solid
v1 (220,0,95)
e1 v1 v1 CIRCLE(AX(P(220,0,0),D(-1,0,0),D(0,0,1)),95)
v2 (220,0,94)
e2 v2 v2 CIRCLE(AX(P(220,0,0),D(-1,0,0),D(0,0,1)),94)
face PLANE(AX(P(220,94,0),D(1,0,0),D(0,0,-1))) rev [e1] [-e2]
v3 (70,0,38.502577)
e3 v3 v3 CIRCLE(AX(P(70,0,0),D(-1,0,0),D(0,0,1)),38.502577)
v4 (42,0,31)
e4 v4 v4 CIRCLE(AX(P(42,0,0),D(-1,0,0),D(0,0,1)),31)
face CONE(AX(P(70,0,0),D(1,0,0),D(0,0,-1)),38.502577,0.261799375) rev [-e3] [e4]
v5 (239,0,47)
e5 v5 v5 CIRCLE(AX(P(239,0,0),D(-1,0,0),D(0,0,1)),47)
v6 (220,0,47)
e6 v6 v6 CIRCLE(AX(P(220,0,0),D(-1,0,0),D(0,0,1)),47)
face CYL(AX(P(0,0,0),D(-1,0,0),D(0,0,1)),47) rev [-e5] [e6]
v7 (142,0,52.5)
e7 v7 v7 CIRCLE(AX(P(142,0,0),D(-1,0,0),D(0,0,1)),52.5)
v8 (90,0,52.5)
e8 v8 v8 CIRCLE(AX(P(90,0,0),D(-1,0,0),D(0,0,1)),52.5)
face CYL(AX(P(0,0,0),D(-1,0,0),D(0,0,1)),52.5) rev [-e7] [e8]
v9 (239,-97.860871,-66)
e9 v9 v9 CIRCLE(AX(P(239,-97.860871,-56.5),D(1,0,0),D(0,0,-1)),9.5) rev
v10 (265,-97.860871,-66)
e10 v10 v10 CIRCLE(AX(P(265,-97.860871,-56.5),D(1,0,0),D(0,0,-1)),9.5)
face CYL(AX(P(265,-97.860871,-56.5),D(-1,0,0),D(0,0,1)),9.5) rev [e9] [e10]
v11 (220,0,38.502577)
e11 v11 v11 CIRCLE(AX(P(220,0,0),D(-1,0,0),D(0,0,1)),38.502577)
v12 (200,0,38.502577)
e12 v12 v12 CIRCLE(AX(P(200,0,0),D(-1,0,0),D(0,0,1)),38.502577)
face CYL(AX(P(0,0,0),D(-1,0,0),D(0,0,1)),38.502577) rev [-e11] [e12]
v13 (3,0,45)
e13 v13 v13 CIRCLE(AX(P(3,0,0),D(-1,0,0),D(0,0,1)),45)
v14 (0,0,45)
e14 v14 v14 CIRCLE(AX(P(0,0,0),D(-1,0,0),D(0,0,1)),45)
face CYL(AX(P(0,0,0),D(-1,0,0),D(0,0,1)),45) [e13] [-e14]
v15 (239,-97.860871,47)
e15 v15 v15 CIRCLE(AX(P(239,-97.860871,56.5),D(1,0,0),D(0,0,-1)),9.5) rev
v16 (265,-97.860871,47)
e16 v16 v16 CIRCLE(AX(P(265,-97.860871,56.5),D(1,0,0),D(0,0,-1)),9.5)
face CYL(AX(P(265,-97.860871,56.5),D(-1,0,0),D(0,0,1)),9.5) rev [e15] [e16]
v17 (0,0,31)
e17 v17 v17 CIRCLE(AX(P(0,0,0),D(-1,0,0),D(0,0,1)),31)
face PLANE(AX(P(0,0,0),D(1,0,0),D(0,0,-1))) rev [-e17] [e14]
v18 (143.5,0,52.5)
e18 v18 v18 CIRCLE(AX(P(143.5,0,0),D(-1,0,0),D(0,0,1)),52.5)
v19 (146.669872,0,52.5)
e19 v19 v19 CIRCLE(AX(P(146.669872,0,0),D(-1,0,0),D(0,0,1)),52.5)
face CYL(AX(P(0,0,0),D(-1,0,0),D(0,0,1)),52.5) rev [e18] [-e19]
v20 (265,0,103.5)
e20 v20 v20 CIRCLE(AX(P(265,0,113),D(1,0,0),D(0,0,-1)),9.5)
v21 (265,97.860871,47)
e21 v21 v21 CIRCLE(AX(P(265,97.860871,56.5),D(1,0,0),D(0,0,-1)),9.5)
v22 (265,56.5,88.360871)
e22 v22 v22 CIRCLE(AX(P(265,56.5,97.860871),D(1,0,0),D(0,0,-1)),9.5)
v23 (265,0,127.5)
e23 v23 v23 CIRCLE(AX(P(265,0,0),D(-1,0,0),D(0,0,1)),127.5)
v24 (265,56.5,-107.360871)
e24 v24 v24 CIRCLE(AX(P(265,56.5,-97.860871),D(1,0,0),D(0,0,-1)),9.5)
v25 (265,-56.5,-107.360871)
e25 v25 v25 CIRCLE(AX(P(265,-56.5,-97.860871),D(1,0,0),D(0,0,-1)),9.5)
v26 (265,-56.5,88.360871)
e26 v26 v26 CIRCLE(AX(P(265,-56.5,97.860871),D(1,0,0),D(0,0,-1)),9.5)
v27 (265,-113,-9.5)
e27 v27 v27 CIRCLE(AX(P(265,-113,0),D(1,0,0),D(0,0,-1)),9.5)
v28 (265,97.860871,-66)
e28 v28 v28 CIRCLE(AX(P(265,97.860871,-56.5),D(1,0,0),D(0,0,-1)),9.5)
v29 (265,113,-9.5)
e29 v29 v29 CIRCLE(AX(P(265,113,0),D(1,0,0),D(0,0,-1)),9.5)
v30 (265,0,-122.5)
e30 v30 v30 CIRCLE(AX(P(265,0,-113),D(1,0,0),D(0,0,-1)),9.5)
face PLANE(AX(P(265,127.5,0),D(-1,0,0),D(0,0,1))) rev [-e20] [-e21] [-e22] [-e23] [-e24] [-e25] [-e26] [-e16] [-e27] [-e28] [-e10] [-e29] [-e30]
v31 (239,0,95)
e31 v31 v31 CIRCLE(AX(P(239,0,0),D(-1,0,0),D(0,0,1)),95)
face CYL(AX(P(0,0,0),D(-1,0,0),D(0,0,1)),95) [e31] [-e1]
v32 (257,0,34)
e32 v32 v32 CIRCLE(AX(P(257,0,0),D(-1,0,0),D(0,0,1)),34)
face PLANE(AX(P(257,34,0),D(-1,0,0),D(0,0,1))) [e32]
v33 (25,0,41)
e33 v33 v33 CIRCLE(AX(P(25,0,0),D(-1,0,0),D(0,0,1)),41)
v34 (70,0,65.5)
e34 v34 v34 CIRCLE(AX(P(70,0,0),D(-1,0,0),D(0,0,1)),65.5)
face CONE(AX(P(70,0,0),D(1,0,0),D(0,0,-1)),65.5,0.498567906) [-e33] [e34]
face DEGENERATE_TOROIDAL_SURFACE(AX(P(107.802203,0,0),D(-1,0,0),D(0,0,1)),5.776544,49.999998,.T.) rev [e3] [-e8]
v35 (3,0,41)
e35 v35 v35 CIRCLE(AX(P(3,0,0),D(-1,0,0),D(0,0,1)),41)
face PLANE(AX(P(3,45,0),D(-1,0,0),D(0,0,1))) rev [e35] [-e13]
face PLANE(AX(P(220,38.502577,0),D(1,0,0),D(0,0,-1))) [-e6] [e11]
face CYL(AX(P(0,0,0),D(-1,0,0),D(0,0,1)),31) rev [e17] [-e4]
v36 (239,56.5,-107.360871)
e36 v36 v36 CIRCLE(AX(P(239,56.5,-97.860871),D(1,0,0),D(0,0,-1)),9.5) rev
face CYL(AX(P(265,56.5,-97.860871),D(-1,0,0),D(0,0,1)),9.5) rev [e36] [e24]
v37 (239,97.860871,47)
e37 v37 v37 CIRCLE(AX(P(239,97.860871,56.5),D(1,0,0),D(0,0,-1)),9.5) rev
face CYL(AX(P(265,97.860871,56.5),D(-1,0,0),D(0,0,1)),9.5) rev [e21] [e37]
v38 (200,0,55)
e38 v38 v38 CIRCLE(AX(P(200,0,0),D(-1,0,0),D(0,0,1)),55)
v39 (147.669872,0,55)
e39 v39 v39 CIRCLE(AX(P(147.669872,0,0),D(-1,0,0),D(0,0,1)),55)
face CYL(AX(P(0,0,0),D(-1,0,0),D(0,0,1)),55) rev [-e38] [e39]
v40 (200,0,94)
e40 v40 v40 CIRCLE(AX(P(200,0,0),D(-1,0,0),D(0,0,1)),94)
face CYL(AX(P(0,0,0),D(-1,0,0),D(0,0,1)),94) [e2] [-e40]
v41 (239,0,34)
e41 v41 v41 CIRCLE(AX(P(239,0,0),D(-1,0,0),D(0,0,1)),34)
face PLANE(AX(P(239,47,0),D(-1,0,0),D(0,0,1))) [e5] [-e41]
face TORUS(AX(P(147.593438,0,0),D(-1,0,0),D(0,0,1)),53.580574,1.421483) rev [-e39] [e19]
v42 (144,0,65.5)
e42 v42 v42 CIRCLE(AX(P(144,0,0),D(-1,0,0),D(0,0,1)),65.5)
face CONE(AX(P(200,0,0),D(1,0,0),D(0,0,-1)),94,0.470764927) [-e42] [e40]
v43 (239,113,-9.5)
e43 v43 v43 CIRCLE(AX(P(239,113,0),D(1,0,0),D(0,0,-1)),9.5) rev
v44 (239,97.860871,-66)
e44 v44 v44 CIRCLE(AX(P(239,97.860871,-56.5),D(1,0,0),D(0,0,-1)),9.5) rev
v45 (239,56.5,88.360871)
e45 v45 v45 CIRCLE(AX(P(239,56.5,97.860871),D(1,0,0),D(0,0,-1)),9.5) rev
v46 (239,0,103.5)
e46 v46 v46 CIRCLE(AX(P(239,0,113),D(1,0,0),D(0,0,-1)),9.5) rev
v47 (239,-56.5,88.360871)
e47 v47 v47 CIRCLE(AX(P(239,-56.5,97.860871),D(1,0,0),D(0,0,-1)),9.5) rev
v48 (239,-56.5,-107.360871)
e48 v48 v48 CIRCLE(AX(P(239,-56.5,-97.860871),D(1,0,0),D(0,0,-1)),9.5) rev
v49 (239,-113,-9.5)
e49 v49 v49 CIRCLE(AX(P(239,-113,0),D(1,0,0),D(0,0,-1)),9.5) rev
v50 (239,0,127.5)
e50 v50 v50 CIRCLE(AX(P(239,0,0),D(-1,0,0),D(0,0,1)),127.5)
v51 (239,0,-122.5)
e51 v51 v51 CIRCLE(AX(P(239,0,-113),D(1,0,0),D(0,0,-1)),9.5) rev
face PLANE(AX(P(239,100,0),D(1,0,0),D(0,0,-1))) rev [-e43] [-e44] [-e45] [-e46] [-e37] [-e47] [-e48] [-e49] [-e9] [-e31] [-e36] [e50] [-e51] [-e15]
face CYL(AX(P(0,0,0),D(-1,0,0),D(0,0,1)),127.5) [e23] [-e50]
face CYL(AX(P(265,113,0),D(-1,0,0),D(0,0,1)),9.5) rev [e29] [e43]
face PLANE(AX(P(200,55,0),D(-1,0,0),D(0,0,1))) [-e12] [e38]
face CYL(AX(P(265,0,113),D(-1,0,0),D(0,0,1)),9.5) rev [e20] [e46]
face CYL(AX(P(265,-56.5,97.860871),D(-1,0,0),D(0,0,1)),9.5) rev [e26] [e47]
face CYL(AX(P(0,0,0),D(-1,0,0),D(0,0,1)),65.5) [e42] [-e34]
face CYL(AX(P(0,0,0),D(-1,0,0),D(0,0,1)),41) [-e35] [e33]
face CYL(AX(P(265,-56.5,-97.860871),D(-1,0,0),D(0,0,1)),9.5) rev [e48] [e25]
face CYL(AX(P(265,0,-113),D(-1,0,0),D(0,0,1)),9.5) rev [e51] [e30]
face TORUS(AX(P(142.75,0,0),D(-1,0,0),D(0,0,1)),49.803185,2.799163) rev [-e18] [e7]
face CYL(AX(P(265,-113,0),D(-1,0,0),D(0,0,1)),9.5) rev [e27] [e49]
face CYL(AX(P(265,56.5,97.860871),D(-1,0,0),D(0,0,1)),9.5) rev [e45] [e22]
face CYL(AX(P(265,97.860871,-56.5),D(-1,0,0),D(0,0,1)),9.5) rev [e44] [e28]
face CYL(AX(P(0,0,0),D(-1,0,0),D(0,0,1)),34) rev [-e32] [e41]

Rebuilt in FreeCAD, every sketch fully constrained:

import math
import FreeCAD as App
import Part
import Sketcher

V = App.Vector
Q = App.Units.Quantity

doc = App.newDocument("Part")
body = doc.addObject("PartDesign::Body", "Body")

sketch1 = doc.addObject("Sketcher::SketchObject", "Sketch")
body.addObject(sketch1)
sketch1.AttachmentSupport = (doc.XY_Plane, [""])
sketch1.MapMode = "FlatFace"
sketch1.addGeometry([
    Part.LineSegment(V(0, 0, 0), V(265, 0, 0)),
    Part.LineSegment(V(265, 0, 0), V(265, 127.5, 0)),
    Part.LineSegment(V(265, 127.5, 0), V(239, 127.5, 0)),
    Part.LineSegment(V(239, 127.5, 0), V(239, 95, 0)),
    Part.LineSegment(V(239, 95, 0), V(220, 95, 0)),
    Part.LineSegment(V(220, 95, 0), V(220, 94, 0)),
    Part.LineSegment(V(220, 94, 0), V(200, 94, 0)),
    Part.LineSegment(V(200, 94, 0), V(144, 65.5, 0)),
    Part.LineSegment(V(144, 65.5, 0), V(70, 65.5, 0)),
    Part.LineSegment(V(70, 65.5, 0), V(25, 41, 0)),
    Part.LineSegment(V(25, 41, 0), V(3, 41, 0)),
    Part.LineSegment(V(3, 41, 0), V(3, 45, 0)),
    Part.LineSegment(V(3, 45, 0), V(0, 45, 0)),
    Part.LineSegment(V(0, 45, 0), V(0, 0, 0)),
], False)
sketch1.addConstraint([
    Sketcher.Constraint("Coincident", 0, 2, 1, 1),
    Sketcher.Constraint("Coincident", 1, 2, 2, 1),
    Sketcher.Constraint("Coincident", 2, 2, 3, 1),
    Sketcher.Constraint("Coincident", 3, 2, 4, 1),
    Sketcher.Constraint("Coincident", 4, 2, 5, 1),
    Sketcher.Constraint("Coincident", 5, 2, 6, 1),
    Sketcher.Constraint("Coincident", 6, 2, 7, 1),
    Sketcher.Constraint("Coincident", 7, 2, 8, 1),
    Sketcher.Constraint("Coincident", 8, 2, 9, 1),
    Sketcher.Constraint("Coincident", 9, 2, 10, 1),
    Sketcher.Constraint("Coincident", 10, 2, 11, 1),
    Sketcher.Constraint("Coincident", 11, 2, 12, 1),
    Sketcher.Constraint("Coincident", 12, 2, 13, 1),
    Sketcher.Constraint("Coincident", 13, 2, 0, 1),
    Sketcher.Constraint("Horizontal", 0),
    Sketcher.Constraint("Vertical", 1),
    Sketcher.Constraint("Horizontal", 2),
    Sketcher.Constraint("Vertical", 3),
    Sketcher.Constraint("Horizontal", 4),
    Sketcher.Constraint("Vertical", 5),
    Sketcher.Constraint("Horizontal", 6),
    Sketcher.Constraint("Horizontal", 8),
    Sketcher.Constraint("Horizontal", 10),
    Sketcher.Constraint("Vertical", 11),
    Sketcher.Constraint("Horizontal", 12),
    Sketcher.Constraint("Vertical", 13),
    Sketcher.Constraint("Coincident", 13, 2, -1, 1),
    Sketcher.Constraint("DistanceX", 0, 1, 0, 2, Q("265 mm")),
    Sketcher.Constraint("DistanceX", 2, 2, 2, 1, Q("26 mm")),
    Sketcher.Constraint("DistanceX", 4, 2, 4, 1, Q("19 mm")),
    Sketcher.Constraint("DistanceX", 6, 2, 6, 1, Q("20 mm")),
    Sketcher.Constraint("DistanceX", 8, 2, 8, 1, Q("74 mm")),
    Sketcher.Constraint("DistanceX", 10, 2, 10, 1, Q("22 mm")),
    Sketcher.Constraint("DistanceX", 12, 2, 12, 1, Q("3 mm")),
    Sketcher.Constraint("DistanceY", 5, 2, 5, 1, Q("1 mm")),
    Sketcher.Constraint("DistanceY", 11, 1, 11, 2, Q("4 mm")),
    Sketcher.Constraint("DistanceY", 13, 2, 13, 1, Q("45 mm")),
    Sketcher.Constraint("DistanceY", 1, 1, 1, 2, Q("127.5 mm")),
    Sketcher.Constraint("DistanceY", 3, 2, 3, 1, Q("32.5 mm")),
    Sketcher.Constraint("DistanceX", -1, 1, 7, 2, Q("144 mm")),
    Sketcher.Constraint("DistanceY", 7, 2, 2, 2, Q("62 mm")),
])
revolution = doc.addObject("PartDesign::Revolution", "Revolution")
body.addObject(revolution)
revolution.Profile = sketch1
revolution.ReferenceAxis = (sketch1, ["H_Axis"])
revolution.Angle = 360

sketch2 = doc.addObject("Sketcher::SketchObject", "Sketch001")
body.addObject(sketch2)
sketch2.AttachmentSupport = (doc.XY_Plane, [""])
sketch2.MapMode = "FlatFace"
sketch2.addGeometry([
    Part.LineSegment(V(0, 0, 0), V(257, 0, 0)),
    Part.LineSegment(V(257, 0, 0), V(257, 34, 0)),
    Part.LineSegment(V(257, 34, 0), V(239, 34, 0)),
    Part.LineSegment(V(239, 34, 0), V(239, 47, 0)),
    Part.LineSegment(V(239, 47, 0), V(220, 47, 0)),
    Part.LineSegment(V(220, 47, 0), V(220, 38.5, 0)),
    Part.LineSegment(V(220, 38.5, 0), V(200, 38.5, 0)),
    Part.LineSegment(V(200, 38.5, 0), V(200, 55, 0)),
    Part.LineSegment(V(200, 55, 0), V(147.7, 55, 0)),
    Part.ArcOfCircle(Part.Circle(V(147.6, 53.6, 0), V(0, 0, 1), 1.4), math.radians(87), math.radians(229)),
    Part.LineSegment(V(146.7, 52.5, 0), V(143.5, 52.5, 0)),
    Part.ArcOfCircle(Part.Circle(V(142.8, 49.8, 0), V(0, 0, 1), 2.8), math.radians(74), math.radians(106)),
    Part.LineSegment(V(142, 52.5, 0), V(90, 52.5, 0)),
    Part.ArcOfCircle(Part.Circle(V(107.8, 5.8, 0), V(0, 0, 1), 50), math.radians(111), math.radians(139)),
    Part.LineSegment(V(70, 38.5, 0), V(42, 31, 0)),
    Part.LineSegment(V(42, 31, 0), V(0, 31, 0)),
    Part.LineSegment(V(0, 31, 0), V(0, 0, 0)),
], False)
sketch2.addConstraint([
    Sketcher.Constraint("Coincident", 0, 2, 1, 1),
    Sketcher.Constraint("Coincident", 1, 2, 2, 1),
    Sketcher.Constraint("Coincident", 2, 2, 3, 1),
    Sketcher.Constraint("Coincident", 3, 2, 4, 1),
    Sketcher.Constraint("Coincident", 4, 2, 5, 1),
    Sketcher.Constraint("Coincident", 5, 2, 6, 1),
    Sketcher.Constraint("Coincident", 6, 2, 7, 1),
    Sketcher.Constraint("Coincident", 7, 2, 8, 1),
    Sketcher.Constraint("Coincident", 8, 2, 9, 1),
    Sketcher.Constraint("Coincident", 9, 2, 10, 1),
    Sketcher.Constraint("Coincident", 10, 2, 11, 1),
    Sketcher.Constraint("Coincident", 11, 2, 12, 1),
    Sketcher.Constraint("Coincident", 12, 2, 13, 1),
    Sketcher.Constraint("Coincident", 13, 2, 14, 1),
    Sketcher.Constraint("Coincident", 14, 2, 15, 1),
    Sketcher.Constraint("Coincident", 15, 2, 16, 1),
    Sketcher.Constraint("Coincident", 16, 2, 0, 1),
    Sketcher.Constraint("Horizontal", 0),
    Sketcher.Constraint("Vertical", 1),
    Sketcher.Constraint("Horizontal", 2),
    Sketcher.Constraint("Vertical", 3),
    Sketcher.Constraint("Horizontal", 4),
    Sketcher.Constraint("Vertical", 5),
    Sketcher.Constraint("Horizontal", 6),
    Sketcher.Constraint("Vertical", 7),
    Sketcher.Constraint("Horizontal", 8),
    Sketcher.Constraint("Horizontal", 10),
    Sketcher.Constraint("Horizontal", 12),
    Sketcher.Constraint("Horizontal", 15),
    Sketcher.Constraint("Vertical", 16),
    Sketcher.Constraint("Coincident", 16, 2, -1, 1),
    Sketcher.Constraint("Horizontal", 10, 2, 11, 2),
    Sketcher.Constraint("Horizontal", 6, 2, 13, 2),
    Sketcher.Constraint("Radius", 13, Q("49.999998 mm")),
    Sketcher.Constraint("DistanceX", 0, 1, 0, 2, Q("257 mm")),
    Sketcher.Constraint("DistanceX", 2, 2, 2, 1, Q("18 mm")),
    Sketcher.Constraint("DistanceX", 4, 2, 4, 1, Q("19 mm")),
    Sketcher.Constraint("DistanceX", 6, 2, 6, 1, Q("20 mm")),
    Sketcher.Constraint("DistanceX", 12, 2, 12, 1, Q("52 mm")),
    Sketcher.Constraint("DistanceX", 15, 2, 15, 1, Q("42 mm")),
    Sketcher.Constraint("DistanceY", 1, 1, 1, 2, Q("34 mm")),
    Sketcher.Constraint("DistanceY", 3, 1, 3, 2, Q("13 mm")),
    Sketcher.Constraint("DistanceY", 16, 2, 16, 1, Q("31 mm")),
    Sketcher.Constraint("Angle", 14, Q("-165.000001 deg")),
    Sketcher.Constraint("DistanceY", -1, 1, 7, 2, Q("55 mm")),
    Sketcher.Constraint("DistanceX", -1, 1, 11, 2, Q("142 mm")),
    Sketcher.Constraint("DistanceX", -1, 1, 13, 2, Q("70 mm")),
    Sketcher.Constraint("DistanceX", 9, 2, 8, 2, Q("1 mm")),
    Sketcher.Constraint("DistanceY", -1, 1, 9, 2, Q("52.5 mm")),
    Sketcher.Constraint("DistanceX", -1, 1, 10, 2, Q("143.5 mm")),
    Sketcher.Constraint("Radius", 9, Q("1.421483 mm")),
    Sketcher.Constraint("Radius", 11, Q("2.799163 mm")),
    Sketcher.Constraint("DistanceX", 8, 2, 8, 1, Q("52.330128 mm")),
])
groove = doc.addObject("PartDesign::Groove", "Groove")
body.addObject(groove)
groove.Profile = sketch2
groove.ReferenceAxis = (sketch2, ["H_Axis"])
groove.Angle = 360

sketch3 = doc.addObject("Sketcher::SketchObject", "Sketch002")
body.addObject(sketch3)
sketch3.AttachmentSupport = (doc.YZ_Plane, [""])
sketch3.MapMode = "FlatFace"
sketch3.addGeometry(Part.Circle(V(113, 0, 0), V(0, 0, 1), 10), False)
sketch3.addConstraint([
    Sketcher.Constraint("PointOnObject", 0, 3, -1),
    Sketcher.Constraint("Diameter", 0, Q("19 mm")),
    Sketcher.Constraint("DistanceX", -1, 1, 0, 3, Q("113 mm")),
])
pocket1 = doc.addObject("PartDesign::Pocket", "Pocket")
body.addObject(pocket1)
pocket1.Profile = sketch3
pocket1.Type = "ThroughAll"
pocket1.Reversed = True

sketch4 = doc.addObject("Sketcher::SketchObject", "Sketch003")
body.addObject(sketch4)
sketch4.AttachmentSupport = (doc.YZ_Plane, [""])
sketch4.MapMode = "FlatFace"
sketch4.addGeometry(Part.Circle(V(98, 56, 0), V(0, 0, 1), 10), False)
sketch4.addConstraint([
    Sketcher.Constraint("Diameter", 0, Q("19 mm")),
    Sketcher.Constraint("DistanceY", -1, 1, 0, 3, Q("56.5 mm")),
    Sketcher.Constraint("DistanceX", -1, 1, 0, 3, Q("97.860871 mm")),
])
pocket2 = doc.addObject("PartDesign::Pocket", "Pocket001")
body.addObject(pocket2)
pocket2.Profile = sketch4
pocket2.Type = "ThroughAll"
pocket2.Reversed = True

sketch5 = doc.addObject("Sketcher::SketchObject", "Sketch004")
body.addObject(sketch5)
sketch5.AttachmentSupport = (doc.YZ_Plane, [""])
sketch5.MapMode = "FlatFace"
sketch5.addGeometry(Part.Circle(V(56, 98, 0), V(0, 0, 1), 10), False)
sketch5.addConstraint([
    Sketcher.Constraint("Diameter", 0, Q("19 mm")),
    Sketcher.Constraint("DistanceX", -1, 1, 0, 3, Q("56.5 mm")),
    Sketcher.Constraint("DistanceY", -1, 1, 0, 3, Q("97.860871 mm")),
])
pocket3 = doc.addObject("PartDesign::Pocket", "Pocket002")
body.addObject(pocket3)
pocket3.Profile = sketch5
pocket3.Type = "ThroughAll"
pocket3.Reversed = True

sketch6 = doc.addObject("Sketcher::SketchObject", "Sketch005")
body.addObject(sketch6)
sketch6.AttachmentSupport = (doc.YZ_Plane, [""])
sketch6.MapMode = "FlatFace"
sketch6.addGeometry(Part.Circle(V(0, 113, 0), V(0, 0, 1), 10), False)
sketch6.addConstraint([
    Sketcher.Constraint("PointOnObject", 0, 3, -2),
    Sketcher.Constraint("Diameter", 0, Q("19 mm")),
    Sketcher.Constraint("DistanceY", -1, 1, 0, 3, Q("113 mm")),
])
pocket4 = doc.addObject("PartDesign::Pocket", "Pocket003")
body.addObject(pocket4)
pocket4.Profile = sketch6
pocket4.Type = "ThroughAll"
pocket4.Reversed = True

sketch7 = doc.addObject("Sketcher::SketchObject", "Sketch006")
body.addObject(sketch7)
sketch7.AttachmentSupport = (doc.YZ_Plane, [""])
sketch7.MapMode = "FlatFace"
sketch7.addGeometry(Part.Circle(V(-56, 98, 0), V(0, 0, 1), 10), False)
sketch7.addConstraint([
    Sketcher.Constraint("Diameter", 0, Q("19 mm")),
    Sketcher.Constraint("DistanceX", 0, 3, -1, 1, Q("56.5 mm")),
    Sketcher.Constraint("DistanceY", -1, 1, 0, 3, Q("97.860871 mm")),
])
pocket5 = doc.addObject("PartDesign::Pocket", "Pocket004")
body.addObject(pocket5)
pocket5.Profile = sketch7
pocket5.Type = "ThroughAll"
pocket5.Reversed = True

sketch8 = doc.addObject("Sketcher::SketchObject", "Sketch007")
body.addObject(sketch8)
sketch8.AttachmentSupport = (doc.YZ_Plane, [""])
sketch8.MapMode = "FlatFace"
sketch8.addGeometry(Part.Circle(V(-98, 56, 0), V(0, 0, 1), 10), False)
sketch8.addConstraint([
    Sketcher.Constraint("Diameter", 0, Q("19 mm")),
    Sketcher.Constraint("DistanceY", -1, 1, 0, 3, Q("56.5 mm")),
    Sketcher.Constraint("DistanceX", 0, 3, -1, 1, Q("97.860871 mm")),
])
pocket6 = doc.addObject("PartDesign::Pocket", "Pocket005")
body.addObject(pocket6)
pocket6.Profile = sketch8
pocket6.Type = "ThroughAll"
pocket6.Reversed = True

sketch9 = doc.addObject("Sketcher::SketchObject", "Sketch008")
body.addObject(sketch9)
sketch9.AttachmentSupport = (doc.YZ_Plane, [""])
sketch9.MapMode = "FlatFace"
sketch9.addGeometry(Part.Circle(V(-113, 0, 0), V(0, 0, 1), 10), False)
sketch9.addConstraint([
    Sketcher.Constraint("PointOnObject", 0, 3, -1),
    Sketcher.Constraint("Diameter", 0, Q("19 mm")),
    Sketcher.Constraint("DistanceX", 0, 3, -1, 1, Q("113 mm")),
])
pocket7 = doc.addObject("PartDesign::Pocket", "Pocket006")
body.addObject(pocket7)
pocket7.Profile = sketch9
pocket7.Type = "ThroughAll"
pocket7.Reversed = True

sketch10 = doc.addObject("Sketcher::SketchObject", "Sketch009")
body.addObject(sketch10)
sketch10.AttachmentSupport = (doc.YZ_Plane, [""])
sketch10.MapMode = "FlatFace"
sketch10.addGeometry(Part.Circle(V(-98, -56, 0), V(0, 0, 1), 10), False)
sketch10.addConstraint([
    Sketcher.Constraint("Diameter", 0, Q("19 mm")),
    Sketcher.Constraint("DistanceY", 0, 3, -1, 1, Q("56.5 mm")),
    Sketcher.Constraint("DistanceX", 0, 3, -1, 1, Q("97.860871 mm")),
])
pocket8 = doc.addObject("PartDesign::Pocket", "Pocket007")
body.addObject(pocket8)
pocket8.Profile = sketch10
pocket8.Type = "ThroughAll"
pocket8.Reversed = True

sketch11 = doc.addObject("Sketcher::SketchObject", "Sketch010")
body.addObject(sketch11)
sketch11.AttachmentSupport = (doc.YZ_Plane, [""])
sketch11.MapMode = "FlatFace"
sketch11.addGeometry(Part.Circle(V(-56, -98, 0), V(0, 0, 1), 10), False)
sketch11.addConstraint([
    Sketcher.Constraint("Diameter", 0, Q("19 mm")),
    Sketcher.Constraint("DistanceX", 0, 3, -1, 1, Q("56.5 mm")),
    Sketcher.Constraint("DistanceY", 0, 3, -1, 1, Q("97.860871 mm")),
])
pocket9 = doc.addObject("PartDesign::Pocket", "Pocket008")
body.addObject(pocket9)
pocket9.Profile = sketch11
pocket9.Type = "ThroughAll"
pocket9.Reversed = True

sketch12 = doc.addObject("Sketcher::SketchObject", "Sketch011")
body.addObject(sketch12)
sketch12.AttachmentSupport = (doc.YZ_Plane, [""])
sketch12.MapMode = "FlatFace"
sketch12.addGeometry(Part.Circle(V(0, -113, 0), V(0, 0, 1), 10), False)
sketch12.addConstraint([
    Sketcher.Constraint("PointOnObject", 0, 3, -2),
    Sketcher.Constraint("Diameter", 0, Q("19 mm")),
    Sketcher.Constraint("DistanceY", 0, 3, -1, 1, Q("113 mm")),
])
pocket10 = doc.addObject("PartDesign::Pocket", "Pocket009")
body.addObject(pocket10)
pocket10.Profile = sketch12
pocket10.Type = "ThroughAll"
pocket10.Reversed = True

sketch13 = doc.addObject("Sketcher::SketchObject", "Sketch012")
body.addObject(sketch13)
sketch13.AttachmentSupport = (doc.YZ_Plane, [""])
sketch13.MapMode = "FlatFace"
sketch13.addGeometry(Part.Circle(V(56, -98, 0), V(0, 0, 1), 10), False)
sketch13.addConstraint([
    Sketcher.Constraint("Diameter", 0, Q("19 mm")),
    Sketcher.Constraint("DistanceX", -1, 1, 0, 3, Q("56.5 mm")),
    Sketcher.Constraint("DistanceY", 0, 3, -1, 1, Q("97.860871 mm")),
])
pocket11 = doc.addObject("PartDesign::Pocket", "Pocket010")
body.addObject(pocket11)
pocket11.Profile = sketch13
pocket11.Type = "ThroughAll"
pocket11.Reversed = True

sketch14 = doc.addObject("Sketcher::SketchObject", "Sketch013")
body.addObject(sketch14)
sketch14.AttachmentSupport = (doc.YZ_Plane, [""])
sketch14.MapMode = "FlatFace"
sketch14.addGeometry(Part.Circle(V(98, -56, 0), V(0, 0, 1), 10), False)
sketch14.addConstraint([
    Sketcher.Constraint("Diameter", 0, Q("19 mm")),
    Sketcher.Constraint("DistanceY", 0, 3, -1, 1, Q("56.5 mm")),
    Sketcher.Constraint("DistanceX", -1, 1, 0, 3, Q("97.860871 mm")),
])
pocket12 = doc.addObject("PartDesign::Pocket", "Pocket011")
body.addObject(pocket12)
pocket12.Profile = sketch14
pocket12.Type = "ThroughAll"
pocket12.Reversed = True

doc.recompute()
